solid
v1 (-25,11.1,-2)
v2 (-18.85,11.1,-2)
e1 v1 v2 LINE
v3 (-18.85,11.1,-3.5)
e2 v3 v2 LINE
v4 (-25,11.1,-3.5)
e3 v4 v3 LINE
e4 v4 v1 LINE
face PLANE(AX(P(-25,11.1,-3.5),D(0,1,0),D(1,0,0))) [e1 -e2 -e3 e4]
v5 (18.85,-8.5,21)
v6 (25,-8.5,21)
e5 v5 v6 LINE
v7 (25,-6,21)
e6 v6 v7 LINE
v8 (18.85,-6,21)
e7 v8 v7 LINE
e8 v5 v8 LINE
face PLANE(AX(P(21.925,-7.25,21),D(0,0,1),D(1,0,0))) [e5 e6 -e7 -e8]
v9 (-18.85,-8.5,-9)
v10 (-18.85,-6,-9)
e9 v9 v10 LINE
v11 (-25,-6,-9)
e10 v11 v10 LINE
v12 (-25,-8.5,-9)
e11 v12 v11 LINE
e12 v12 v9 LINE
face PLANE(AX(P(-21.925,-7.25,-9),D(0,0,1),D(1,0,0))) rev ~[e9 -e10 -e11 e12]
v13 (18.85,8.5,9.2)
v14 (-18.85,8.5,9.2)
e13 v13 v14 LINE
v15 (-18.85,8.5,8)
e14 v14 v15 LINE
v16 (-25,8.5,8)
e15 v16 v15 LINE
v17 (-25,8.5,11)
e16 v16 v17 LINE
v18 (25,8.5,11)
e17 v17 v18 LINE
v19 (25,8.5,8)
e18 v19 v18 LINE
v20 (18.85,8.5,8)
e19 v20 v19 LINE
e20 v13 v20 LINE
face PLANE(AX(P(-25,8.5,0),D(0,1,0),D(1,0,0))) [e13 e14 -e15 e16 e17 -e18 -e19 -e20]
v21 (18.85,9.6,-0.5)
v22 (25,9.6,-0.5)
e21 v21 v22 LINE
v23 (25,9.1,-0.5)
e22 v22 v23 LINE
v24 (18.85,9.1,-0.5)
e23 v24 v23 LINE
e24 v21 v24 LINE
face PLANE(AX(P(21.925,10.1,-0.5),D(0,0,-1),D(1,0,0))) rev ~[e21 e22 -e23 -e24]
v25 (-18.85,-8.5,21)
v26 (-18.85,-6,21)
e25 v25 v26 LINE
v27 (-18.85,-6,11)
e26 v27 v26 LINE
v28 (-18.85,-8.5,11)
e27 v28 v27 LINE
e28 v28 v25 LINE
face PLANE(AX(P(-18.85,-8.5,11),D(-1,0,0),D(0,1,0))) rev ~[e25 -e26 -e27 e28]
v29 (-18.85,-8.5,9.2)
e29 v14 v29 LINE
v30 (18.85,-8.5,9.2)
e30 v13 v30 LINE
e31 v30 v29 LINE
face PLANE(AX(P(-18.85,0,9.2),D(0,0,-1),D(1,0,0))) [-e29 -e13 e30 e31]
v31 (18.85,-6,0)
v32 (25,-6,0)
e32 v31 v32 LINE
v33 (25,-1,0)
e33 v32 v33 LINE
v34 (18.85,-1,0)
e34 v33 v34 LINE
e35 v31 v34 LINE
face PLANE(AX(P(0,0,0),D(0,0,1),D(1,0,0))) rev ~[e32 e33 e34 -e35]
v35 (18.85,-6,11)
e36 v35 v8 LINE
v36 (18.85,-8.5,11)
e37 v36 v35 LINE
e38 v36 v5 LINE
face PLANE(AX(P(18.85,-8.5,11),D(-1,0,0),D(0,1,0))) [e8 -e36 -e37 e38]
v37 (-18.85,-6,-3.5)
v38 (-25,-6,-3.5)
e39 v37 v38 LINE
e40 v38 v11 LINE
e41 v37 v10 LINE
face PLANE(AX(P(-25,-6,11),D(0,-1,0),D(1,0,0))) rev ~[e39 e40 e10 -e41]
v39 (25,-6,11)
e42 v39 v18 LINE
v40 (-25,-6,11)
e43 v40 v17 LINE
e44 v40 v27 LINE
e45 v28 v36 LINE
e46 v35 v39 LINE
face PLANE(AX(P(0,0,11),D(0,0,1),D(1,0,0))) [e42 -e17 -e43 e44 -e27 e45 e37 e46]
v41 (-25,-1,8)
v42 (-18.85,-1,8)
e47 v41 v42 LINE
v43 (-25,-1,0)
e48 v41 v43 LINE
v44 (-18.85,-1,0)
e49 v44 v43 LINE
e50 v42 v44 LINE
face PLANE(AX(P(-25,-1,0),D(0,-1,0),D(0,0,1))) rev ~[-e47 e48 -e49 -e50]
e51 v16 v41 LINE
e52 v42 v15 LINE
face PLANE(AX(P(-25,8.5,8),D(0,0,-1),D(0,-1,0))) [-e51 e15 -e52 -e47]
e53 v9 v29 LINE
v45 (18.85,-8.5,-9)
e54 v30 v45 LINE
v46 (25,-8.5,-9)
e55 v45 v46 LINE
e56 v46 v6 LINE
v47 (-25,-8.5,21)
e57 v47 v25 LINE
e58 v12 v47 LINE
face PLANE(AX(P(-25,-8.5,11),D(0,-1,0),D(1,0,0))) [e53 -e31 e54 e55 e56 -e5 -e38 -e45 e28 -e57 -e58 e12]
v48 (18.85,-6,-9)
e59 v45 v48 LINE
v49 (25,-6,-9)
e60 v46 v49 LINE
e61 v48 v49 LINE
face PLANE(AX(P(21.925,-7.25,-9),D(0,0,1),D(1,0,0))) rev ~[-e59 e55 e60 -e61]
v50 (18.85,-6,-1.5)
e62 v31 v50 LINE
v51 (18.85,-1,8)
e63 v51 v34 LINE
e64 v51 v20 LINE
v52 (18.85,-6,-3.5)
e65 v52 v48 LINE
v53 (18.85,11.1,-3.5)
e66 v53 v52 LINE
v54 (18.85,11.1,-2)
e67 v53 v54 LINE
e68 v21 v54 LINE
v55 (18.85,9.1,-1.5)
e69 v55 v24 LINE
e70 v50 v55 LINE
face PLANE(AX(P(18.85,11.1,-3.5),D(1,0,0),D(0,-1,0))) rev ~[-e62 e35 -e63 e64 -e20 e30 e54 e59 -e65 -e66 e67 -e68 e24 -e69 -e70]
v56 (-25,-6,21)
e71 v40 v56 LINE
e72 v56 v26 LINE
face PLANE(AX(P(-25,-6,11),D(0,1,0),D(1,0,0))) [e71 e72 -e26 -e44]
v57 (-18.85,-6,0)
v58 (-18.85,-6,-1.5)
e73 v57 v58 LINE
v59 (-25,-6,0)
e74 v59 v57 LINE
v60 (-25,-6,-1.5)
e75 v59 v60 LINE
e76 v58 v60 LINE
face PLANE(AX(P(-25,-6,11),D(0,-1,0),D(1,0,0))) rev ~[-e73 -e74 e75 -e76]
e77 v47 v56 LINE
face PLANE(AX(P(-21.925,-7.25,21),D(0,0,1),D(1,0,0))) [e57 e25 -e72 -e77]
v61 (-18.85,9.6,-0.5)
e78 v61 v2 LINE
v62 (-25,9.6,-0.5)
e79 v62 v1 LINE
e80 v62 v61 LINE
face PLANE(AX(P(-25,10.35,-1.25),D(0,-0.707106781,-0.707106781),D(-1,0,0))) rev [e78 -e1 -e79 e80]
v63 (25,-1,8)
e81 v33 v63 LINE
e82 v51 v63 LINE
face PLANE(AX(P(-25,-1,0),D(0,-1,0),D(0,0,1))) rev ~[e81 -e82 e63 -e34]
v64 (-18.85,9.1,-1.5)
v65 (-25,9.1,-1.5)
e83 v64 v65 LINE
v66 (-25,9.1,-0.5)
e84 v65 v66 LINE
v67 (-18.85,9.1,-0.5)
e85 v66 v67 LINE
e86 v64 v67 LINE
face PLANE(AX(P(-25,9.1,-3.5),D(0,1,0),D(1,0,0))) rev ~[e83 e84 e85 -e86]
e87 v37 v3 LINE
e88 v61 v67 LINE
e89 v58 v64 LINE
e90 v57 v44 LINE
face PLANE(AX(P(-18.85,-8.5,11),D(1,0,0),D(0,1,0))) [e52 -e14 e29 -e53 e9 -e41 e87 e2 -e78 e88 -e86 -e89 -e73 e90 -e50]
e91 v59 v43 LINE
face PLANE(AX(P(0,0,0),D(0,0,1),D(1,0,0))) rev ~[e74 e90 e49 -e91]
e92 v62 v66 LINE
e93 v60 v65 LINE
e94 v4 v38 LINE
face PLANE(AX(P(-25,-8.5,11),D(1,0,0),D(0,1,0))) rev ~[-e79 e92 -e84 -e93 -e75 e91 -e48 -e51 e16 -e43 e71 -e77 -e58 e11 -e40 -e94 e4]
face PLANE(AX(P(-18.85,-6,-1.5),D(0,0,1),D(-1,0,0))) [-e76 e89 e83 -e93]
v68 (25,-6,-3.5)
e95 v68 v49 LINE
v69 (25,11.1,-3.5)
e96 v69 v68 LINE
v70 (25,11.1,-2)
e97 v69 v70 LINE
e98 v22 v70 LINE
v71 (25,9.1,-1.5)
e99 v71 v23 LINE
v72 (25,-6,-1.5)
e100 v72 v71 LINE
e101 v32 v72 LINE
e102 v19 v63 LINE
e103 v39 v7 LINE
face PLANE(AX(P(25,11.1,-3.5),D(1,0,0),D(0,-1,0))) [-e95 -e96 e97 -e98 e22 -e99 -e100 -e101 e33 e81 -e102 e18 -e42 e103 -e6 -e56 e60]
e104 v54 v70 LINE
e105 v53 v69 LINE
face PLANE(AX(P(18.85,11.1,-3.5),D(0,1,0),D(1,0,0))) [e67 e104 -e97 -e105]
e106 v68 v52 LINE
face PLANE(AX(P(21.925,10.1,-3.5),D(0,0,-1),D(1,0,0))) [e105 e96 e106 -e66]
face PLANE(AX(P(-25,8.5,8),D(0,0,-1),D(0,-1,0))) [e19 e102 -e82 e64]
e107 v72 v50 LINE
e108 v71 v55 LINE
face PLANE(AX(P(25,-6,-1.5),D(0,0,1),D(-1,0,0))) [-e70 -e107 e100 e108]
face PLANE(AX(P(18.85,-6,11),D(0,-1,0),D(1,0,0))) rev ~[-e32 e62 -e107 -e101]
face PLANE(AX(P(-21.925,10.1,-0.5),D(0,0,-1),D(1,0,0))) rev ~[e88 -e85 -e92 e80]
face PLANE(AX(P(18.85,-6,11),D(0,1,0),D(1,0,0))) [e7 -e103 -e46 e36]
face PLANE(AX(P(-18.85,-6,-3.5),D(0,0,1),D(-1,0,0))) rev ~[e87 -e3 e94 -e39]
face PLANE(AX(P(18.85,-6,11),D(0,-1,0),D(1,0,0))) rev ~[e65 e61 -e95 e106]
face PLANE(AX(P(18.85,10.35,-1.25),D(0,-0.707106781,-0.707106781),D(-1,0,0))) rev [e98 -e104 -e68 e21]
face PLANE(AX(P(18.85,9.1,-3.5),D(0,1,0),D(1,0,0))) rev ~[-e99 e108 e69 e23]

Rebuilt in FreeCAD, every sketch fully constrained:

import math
import FreeCAD as App
import Part
import Sketcher
from FreeCAD import Vector
Q = App.Units.Quantity


def edges_at(feature, points):
    """Names of the edges that pass closest to the given points."""
    edges = feature.Shape.Edges
    near = lambda p: min(range(len(edges)), key=lambda i: edges[i].distToShape(Part.Vertex(*p))[0])
    return sorted({f"Edge{near(p) + 1}" for p in points})

doc = App.newDocument("Part")
body = doc.addObject("PartDesign::Body", "Body")

# Sketch on XY plane
sketch1 = body.newObject("Sketcher::SketchObject", "Sketch")
sketch1.AttachmentSupport = (doc.getObject("XY_Plane"), [""])
sketch1.MapMode = "FlatFace"
sketch1.addGeometry([
    Part.LineSegment(Vector(-25, 8, 0), Vector(-25, -8, 0)),
    Part.LineSegment(Vector(-25, -8, 0), Vector(25, -8, 0)),
    Part.LineSegment(Vector(25, -8, 0), Vector(25, 8, 0)),
    Part.LineSegment(Vector(25, 8, 0), Vector(-25, 8, 0)),
], False)
sketch1.addConstraint([
    Sketcher.Constraint("Coincident", 0, 2, 1, 1),
    Sketcher.Constraint("Coincident", 1, 2, 2, 1),
    Sketcher.Constraint("Coincident", 2, 2, 3, 1),
    Sketcher.Constraint("Coincident", 3, 2, 0, 1),
    Sketcher.Constraint("Vertical", 0),
    Sketcher.Constraint("Horizontal", 1),
    Sketcher.Constraint("Vertical", 2),
    Sketcher.Constraint("Horizontal", 3),
    Sketcher.Constraint("Symmetric", 0, 2, 2, 2, -1, 1),
    Sketcher.Constraint("DistanceX", 1, 1, 1, 2, Q("50 mm")),
    Sketcher.Constraint("DistanceY", 0, 2, 0, 1, Q("17 mm")),
])
pad1 = body.newObject("PartDesign::Pad", "Pad")
pad1.Profile = sketch1
pad1.Length = 11

# Sketch on XZ plane
sketch2 = body.newObject("Sketcher::SketchObject", "Sketch001")
sketch2.AttachmentSupport = (doc.getObject("XZ_Plane"), [""])
sketch2.MapMode = "FlatFace"
sketch2.addGeometry([
    Part.LineSegment(Vector(-19, 9, 0), Vector(-19, -9, 0)),
    Part.LineSegment(Vector(-19, -9, 0), Vector(19, -9, 0)),
    Part.LineSegment(Vector(19, -9, 0), Vector(19, 9, 0)),
    Part.LineSegment(Vector(19, 9, 0), Vector(-19, 9, 0)),
], False)
sketch2.addConstraint([
    Sketcher.Constraint("Coincident", 0, 2, 1, 1),
    Sketcher.Constraint("Coincident", 1, 2, 2, 1),
    Sketcher.Constraint("Coincident", 2, 2, 3, 1),
    Sketcher.Constraint("Coincident", 3, 2, 0, 1),
    Sketcher.Constraint("Vertical", 0),
    Sketcher.Constraint("Horizontal", 1),
    Sketcher.Constraint("Vertical", 2),
    Sketcher.Constraint("Horizontal", 3),
    Sketcher.Constraint("Symmetric", 0, 2, 2, 2, -1, 1),
    Sketcher.Constraint("DistanceX", 1, 1, 1, 2, Q("37.7 mm")),
    Sketcher.Constraint("DistanceY", 0, 2, 0, 1, Q("18.4 mm")),
])
pocket1 = body.newObject("PartDesign::Pocket", "Pocket")
pocket1.Profile = sketch2
pocket1.Length = 25
pocket1.Midplane = True

# Sketch on YZ plane
sketch3 = body.newObject("Sketcher::SketchObject", "Sketch002")
sketch3.AttachmentSupport = (doc.getObject("YZ_Plane"), [""])
sketch3.MapMode = "FlatFace"
sketch3.AttachmentOffset = App.Placement(Vector(0, 0, 25), App.Rotation())
sketch3.addGeometry([
    Part.LineSegment(Vector(1, 0, 0), Vector(1, 4, 0)),
    Part.ArcOfCircle(Part.Circle(Vector(0, 4, 0), Vector(0, 0, 1), 1), math.radians(0), math.radians(180)),
    Part.LineSegment(Vector(-1, 4, 0), Vector(-1, 0, 0)),
    Part.LineSegment(Vector(-1, 0, 0), Vector(1, 0, 0)),
], False)
sketch3.addConstraint([
    Sketcher.Constraint("Tangent", 0, 2, 1, 1),
    Sketcher.Constraint("Tangent", 1, 2, 2, 1),
    Sketcher.Constraint("Coincident", 2, 2, 3, 1),
    Sketcher.Constraint("Coincident", 3, 2, 0, 1),
    Sketcher.Constraint("Vertical", 0),
    Sketcher.Constraint("Vertical", 2),
    Sketcher.Constraint("Horizontal", 3),
    Sketcher.Constraint("Symmetric", 2, 2, 3, 2, -1, 1),
    Sketcher.Constraint("Radius", 1, Q("1 mm")),
    Sketcher.Constraint("DistanceY", 0, 1, 0, 2, Q("4 mm")),
])
pocket2 = body.newObject("PartDesign::Pocket", "Pocket001")
pocket2.Profile = sketch3
pocket2.Type = "ThroughAll"

# Sketch on XY plane
sketch4 = body.newObject("Sketcher::SketchObject", "Sketch003")
sketch4.AttachmentSupport = (doc.getObject("XY_Plane"), [""])
sketch4.MapMode = "FlatFace"
sketch4.AttachmentOffset = App.Placement(Vector(0, 0, 11), App.Rotation())
sketch4.addGeometry([
    Part.LineSegment(Vector(-25, -6, 0), Vector(-25, -8.5, 0)),  # 0
    Part.LineSegment(Vector(-25, -8.5, 0), Vector(-18.9, -8.5, 0)),  # 1
    Part.LineSegment(Vector(-18.9, -8.5, 0), Vector(-18.9, -6, 0)),  # 2
    Part.LineSegment(Vector(-18.9, -6, 0), Vector(-25, -6, 0)),  # 3
    Part.LineSegment(Vector(18.9, -6, 0), Vector(18.9, -8.5, 0)),  # 4
    Part.LineSegment(Vector(18.9, -8.5, 0), Vector(25, -8.5, 0)),  # 5
    Part.LineSegment(Vector(25, -8.5, 0), Vector(25, -6, 0)),  # 6
    Part.LineSegment(Vector(25, -6, 0), Vector(18.9, -6, 0)),  # 7
], False)
sketch4.addConstraint([
    Sketcher.Constraint("Coincident", 0, 2, 1, 1),
    Sketcher.Constraint("Coincident", 1, 2, 2, 1),
    Sketcher.Constraint("Coincident", 2, 2, 3, 1),
    Sketcher.Constraint("Coincident", 3, 2, 0, 1),
    Sketcher.Constraint("Coincident", 4, 2, 5, 1),
    Sketcher.Constraint("Coincident", 5, 2, 6, 1),
    Sketcher.Constraint("Coincident", 6, 2, 7, 1),
    Sketcher.Constraint("Coincident", 7, 2, 4, 1),
    Sketcher.Constraint("Vertical", 0),
    Sketcher.Constraint("Horizontal", 1),
    Sketcher.Constraint("Vertical", 2),
    Sketcher.Constraint("Horizontal", 3),
    Sketcher.Constraint("Vertical", 4),
    Sketcher.Constraint("Horizontal", 5),
    Sketcher.Constraint("Vertical", 6),
    Sketcher.Constraint("Horizontal", 7),
    Sketcher.Constraint("Symmetric", 1, 2, 4, 2, -2),
    Sketcher.Constraint("Symmetric", 3, 2, 6, 2, -2),
    Sketcher.Constraint("DistanceY", 0, 2, 0, 1, Q("2.5 mm")),
    Sketcher.Constraint("DistanceX", 0, 2, -1, 1, Q("25 mm")),
    Sketcher.Constraint("DistanceY", 2, 2, -1, 1, Q("6 mm")),
    Sketcher.Constraint("DistanceX", 1, 1, 1, 2, Q("6.15 mm")),
])
pad2 = body.newObject("PartDesign::Pad", "Pad001")
pad2.Profile = sketch4
pad2.Length = 10

# Sketch on XY plane
sketch5 = body.newObject("Sketcher::SketchObject", "Sketch004")
sketch5.AttachmentSupport = (doc.getObject("XY_Plane"), [""])
sketch5.MapMode = "FlatFace"
sketch5.AttachmentOffset = App.Placement(Vector(0, 0, 11), App.Rotation())
sketch5.addGeometry([
    Part.LineSegment(Vector(-25, -6, 0), Vector(-25, -8.5, 0)),  # 0
    Part.LineSegment(Vector(-25, -8.5, 0), Vector(-18.9, -8.5, 0)),  # 1
    Part.LineSegment(Vector(-18.9, -8.5, 0), Vector(-18.9, -6, 0)),  # 2
    Part.LineSegment(Vector(-18.9, -6, 0), Vector(-25, -6, 0)),  # 3
    Part.LineSegment(Vector(18.9, -6, 0), Vector(18.9, -8.5, 0)),  # 4
    Part.LineSegment(Vector(18.9, -8.5, 0), Vector(25, -8.5, 0)),  # 5
    Part.LineSegment(Vector(25, -8.5, 0), Vector(25, -6, 0)),  # 6
    Part.LineSegment(Vector(25, -6, 0), Vector(18.9, -6, 0)),  # 7
], False)
sketch5.addConstraint([
    Sketcher.Constraint("Coincident", 0, 2, 1, 1),
    Sketcher.Constraint("Coincident", 1, 2, 2, 1),
    Sketcher.Constraint("Coincident", 2, 2, 3, 1),
    Sketcher.Constraint("Coincident", 3, 2, 0, 1),
    Sketcher.Constraint("Coincident", 4, 2, 5, 1),
    Sketcher.Constraint("Coincident", 5, 2, 6, 1),
    Sketcher.Constraint("Coincident", 6, 2, 7, 1),
    Sketcher.Constraint("Coincident", 7, 2, 4, 1),
    Sketcher.Constraint("Vertical", 0),
    Sketcher.Constraint("Horizontal", 1),
    Sketcher.Constraint("Vertical", 2),
    Sketcher.Constraint("Horizontal", 3),
    Sketcher.Constraint("Vertical", 4),
    Sketcher.Constraint("Horizontal", 5),
    Sketcher.Constraint("Vertical", 6),
    Sketcher.Constraint("Horizontal", 7),
    Sketcher.Constraint("Symmetric", 1, 2, 4, 2, -2),
    Sketcher.Constraint("Symmetric", 3, 2, 6, 2, -2),
    Sketcher.Constraint("DistanceY", 0, 2, 0, 1, Q("2.5 mm")),
    Sketcher.Constraint("DistanceX", 0, 2, -1, 1, Q("25 mm")),
    Sketcher.Constraint("DistanceY", 2, 2, -1, 1, Q("6 mm")),
    Sketcher.Constraint("DistanceX", 1, 1, 1, 2, Q("6.15 mm")),
])
pad3 = body.newObject("PartDesign::Pad", "Pad002")
pad3.Profile = sketch5
pad3.Length = 20
pad3.Reversed = True

# Sketch on XZ plane
sketch6 = body.newObject("Sketcher::SketchObject", "Sketch005")
sketch6.AttachmentSupport = (doc.getObject("XZ_Plane"), [""])
sketch6.MapMode = "FlatFace"
sketch6.AttachmentOffset = App.Placement(Vector(0, 0, 6), App.Rotation())
sketch6.addGeometry([
    Part.LineSegment(Vector(25, -1.5, 0), Vector(25, -3.5, 0)),  # 0
    Part.LineSegment(Vector(25, -3.5, 0), Vector(18.9, -3.5, 0)),  # 1
    Part.LineSegment(Vector(18.9, -3.5, 0), Vector(18.9, -1.5, 0)),  # 2
    Part.LineSegment(Vector(18.9, -1.5, 0), Vector(25, -1.5, 0)),  # 3
    Part.LineSegment(Vector(-18.9, -1.5, 0), Vector(-18.9, -3.5, 0)),  # 4
    Part.LineSegment(Vector(-18.9, -3.5, 0), Vector(-25, -3.5, 0)),  # 5
    Part.LineSegment(Vector(-25, -3.5, 0), Vector(-25, -1.5, 0)),  # 6
    Part.LineSegment(Vector(-25, -1.5, 0), Vector(-18.9, -1.5, 0)),  # 7
], False)
sketch6.addConstraint([
    Sketcher.Constraint("Coincident", 0, 2, 1, 1),
    Sketcher.Constraint("Coincident", 1, 2, 2, 1),
    Sketcher.Constraint("Coincident", 2, 2, 3, 1),
    Sketcher.Constraint("Coincident", 3, 2, 0, 1),
    Sketcher.Constraint("Coincident", 4, 2, 5, 1),
    Sketcher.Constraint("Coincident", 5, 2, 6, 1),
    Sketcher.Constraint("Coincident", 6, 2, 7, 1),
    Sketcher.Constraint("Coincident", 7, 2, 4, 1),
    Sketcher.Constraint("Vertical", 0),
    Sketcher.Constraint("Horizontal", 1),
    Sketcher.Constraint("Vertical", 2),
    Sketcher.Constraint("Horizontal", 3),
    Sketcher.Constraint("Vertical", 4),
    Sketcher.Constraint("Horizontal", 5),
    Sketcher.Constraint("Vertical", 6),
    Sketcher.Constraint("Horizontal", 7),
    Sketcher.Constraint("Symmetric", 1, 2, 4, 2, -2),
    Sketcher.Constraint("Symmetric", 3, 2, 6, 2, -2),
    Sketcher.Constraint("DistanceY", 0, 2, 0, 1, Q("2 mm")),
    Sketcher.Constraint("DistanceX", -1, 1, 0, 2, Q("25 mm")),
    Sketcher.Constraint("DistanceX", 1, 2, 1, 1, Q("6.15 mm")),
    Sketcher.Constraint("DistanceY", 0, 2, -1, 1, Q("3.5 mm")),
])
pad4 = body.newObject("PartDesign::Pad", "Pad003")
pad4.Profile = sketch6
pad4.Length = 15.1
pad4.Reversed = True

# Sketch on YZ plane
sketch7 = body.newObject("Sketcher::SketchObject", "Sketch006")
sketch7.AttachmentSupport = (doc.getObject("YZ_Plane"), [""])
sketch7.MapMode = "FlatFace"
sketch7.AttachmentOffset = App.Placement(Vector(0, 0, -25), App.Rotation())
sketch7.addGeometry([
    Part.LineSegment(Vector(8, 8, 0), Vector(8, 0, 0)),
    Part.LineSegment(Vector(8, 0, 0), Vector(-1, 0, 0)),
    Part.LineSegment(Vector(-1, 0, 0), Vector(-1, 8, 0)),
    Part.LineSegment(Vector(-1, 8, 0), Vector(8, 8, 0)),
], False)
sketch7.addConstraint([
    Sketcher.Constraint("Coincident", 0, 2, 1, 1),
    Sketcher.Constraint("Coincident", 1, 2, 2, 1),
    Sketcher.Constraint("Coincident", 2, 2, 3, 1),
    Sketcher.Constraint("Coincident", 3, 2, 0, 1),
    Sketcher.Constraint("Vertical", 0),
    Sketcher.Constraint("Horizontal", 1),
    Sketcher.Constraint("Vertical", 2),
    Sketcher.Constraint("Horizontal", 3),
    Sketcher.Constraint("PointOnObject", 0, 2, -1),
    Sketcher.Constraint("DistanceY", 0, 2, 0, 1, Q("8 mm")),
    Sketcher.Constraint("DistanceX", 1, 2, 1, 1, Q("9.5 mm")),
    Sketcher.Constraint("DistanceX", 1, 2, -1, 1, Q("1 mm")),
])
pocket3 = body.newObject("PartDesign::Pocket", "Pocket002")
pocket3.Profile = sketch7
pocket3.Type = "ThroughAll"
pocket3.Reversed = True

# Sketch on XY plane
sketch8 = body.newObject("Sketcher::SketchObject", "Sketch007")
sketch8.AttachmentSupport = (doc.getObject("XY_Plane"), [""])
sketch8.MapMode = "FlatFace"
sketch8.AttachmentOffset = App.Placement(Vector(0, 0, -3.5), App.Rotation())
sketch8.addGeometry([
    Part.LineSegment(Vector(18.9, 9.1, 0), Vector(18.9, 11.1, 0)),  # 0
    Part.LineSegment(Vector(18.9, 11.1, 0), Vector(25, 11.1, 0)),  # 1
    Part.LineSegment(Vector(25, 11.1, 0), Vector(25, 9.1, 0)),  # 2
    Part.LineSegment(Vector(25, 9.1, 0), Vector(18.9, 9.1, 0)),  # 3
    Part.LineSegment(Vector(-25, 9.1, 0), Vector(-25, 11.1, 0)),  # 4
    Part.LineSegment(Vector(-25, 11.1, 0), Vector(-18.9, 11.1, 0)),  # 5
    Part.LineSegment(Vector(-18.9, 11.1, 0), Vector(-18.9, 9.1, 0)),  # 6
    Part.LineSegment(Vector(-18.9, 9.1, 0), Vector(-25, 9.1, 0)),  # 7
], False)
sketch8.addConstraint([
    Sketcher.Constraint("Coincident", 0, 2, 1, 1),
    Sketcher.Constraint("Coincident", 1, 2, 2, 1),
    Sketcher.Constraint("Coincident", 2, 2, 3, 1),
    Sketcher.Constraint("Coincident", 3, 2, 0, 1),
    Sketcher.Constraint("Coincident", 4, 2, 5, 1),
    Sketcher.Constraint("Coincident", 5, 2, 6, 1),
    Sketcher.Constraint("Coincident", 6, 2, 7, 1),
    Sketcher.Constraint("Coincident", 7, 2, 4, 1),
    Sketcher.Constraint("Vertical", 0),
    Sketcher.Constraint("Horizontal", 1),
    Sketcher.Constraint("Vertical", 2),
    Sketcher.Constraint("Horizontal", 3),
    Sketcher.Constraint("Vertical", 4),
    Sketcher.Constraint("Horizontal", 5),
    Sketcher.Constraint("Vertical", 6),
    Sketcher.Constraint("Horizontal", 7),
    Sketcher.Constraint("Symmetric", 1, 2, 4, 2, -2),
    Sketcher.Constraint("Symmetric", 3, 2, 6, 2, -2),
    Sketcher.Constraint("DistanceY", 0, 1, 0, 2, Q("2 mm")),
    Sketcher.Constraint("DistanceX", -1, 1, 1, 2, Q("25 mm")),
    Sketcher.Constraint("DistanceX", 1, 1, 1, 2, Q("6.15 mm")),
    Sketcher.Constraint("DistanceY", -1, 1, 0, 2, Q("11.1 mm")),
])
pad5 = body.newObject("PartDesign::Pad", "Pad004")
pad5.Profile = sketch8
pad5.Length = 3
doc.recompute()

chamfer = body.newObject("PartDesign::Chamfer", "Chamfer")
chamfer.Base = (pad5, edges_at(pad5, [(21.925, 11.1, -0.5), (-21.925, 11.1, -0.5)]))
chamfer.Size = 1.5

doc.recompute()
